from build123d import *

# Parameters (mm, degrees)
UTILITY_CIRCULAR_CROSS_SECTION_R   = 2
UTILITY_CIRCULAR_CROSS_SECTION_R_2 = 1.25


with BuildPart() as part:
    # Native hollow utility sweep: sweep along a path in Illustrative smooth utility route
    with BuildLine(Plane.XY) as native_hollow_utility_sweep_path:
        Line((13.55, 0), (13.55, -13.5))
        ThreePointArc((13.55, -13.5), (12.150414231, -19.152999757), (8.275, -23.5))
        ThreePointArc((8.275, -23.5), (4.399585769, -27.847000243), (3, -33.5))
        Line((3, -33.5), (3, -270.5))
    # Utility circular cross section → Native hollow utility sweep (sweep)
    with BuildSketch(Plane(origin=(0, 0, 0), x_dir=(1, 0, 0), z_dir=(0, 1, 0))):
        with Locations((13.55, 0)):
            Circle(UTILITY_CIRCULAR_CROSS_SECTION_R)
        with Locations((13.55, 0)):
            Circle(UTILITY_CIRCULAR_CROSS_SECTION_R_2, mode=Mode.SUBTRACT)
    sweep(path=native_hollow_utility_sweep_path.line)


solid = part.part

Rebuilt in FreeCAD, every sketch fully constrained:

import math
import FreeCAD as App
import Part
import Sketcher

V = App.Vector

doc = App.newDocument("Part")
body = doc.addObject("PartDesign::Body", "Body")

# Sketch on XZ plane
sketch1 = doc.addObject("Sketcher::SketchObject", "Sketch")
body.addObject(sketch1)
sketch1.AttachmentSupport = (doc.XZ_Plane, [""])
sketch1.MapMode = "FlatFace"
sketch1.addGeometry(Part.Circle(V(13.6, 0, 0), V(0, 0, 1), 2), False)
sketch1.addGeometry(Part.Circle(V(13.6, 0, 0), V(0, 0, 1), 1.2), False)
sketch1.addConstraint(Sketcher.Constraint("Coincident", 1, 3, 0, 3))
sketch1.addConstraint(Sketcher.Constraint("PointOnObject", 0, 3, -1))
sketch1.addConstraint(Sketcher.Constraint("Diameter", 0, 4.0))
sketch1.addConstraint(Sketcher.Constraint("Diameter", 1, 2.5))
sketch1.addConstraint(Sketcher.Constraint("DistanceX", -1, 1, 0, 3, 13.55))

# Sketch on XY plane
sketch2 = doc.addObject("Sketcher::SketchObject", "Sketch001")
body.addObject(sketch2)
sketch2.AttachmentSupport = (doc.XY_Plane, [""])
sketch2.MapMode = "FlatFace"
sketch2.addGeometry(Part.LineSegment(V(14, 0, 0), V(14, -14, 0)), False)
sketch2.addGeometry(Part.ArcOfCircle(Part.Circle(V(1, -14, 0), V(0, 0, 1), 12), math.radians(-56), math.radians(0)), False)
sketch2.addGeometry(Part.ArcOfCircle(Part.Circle(V(15, -33, 0), V(0, 0, 1), 12), math.radians(124), math.radians(180)), False)
sketch2.addGeometry(Part.LineSegment(V(3, -34, 0), V(3, -270, 0)), False)
sketch2.addConstraint(Sketcher.Constraint("Tangent", 0, 2, 1, 2))
sketch2.addConstraint(Sketcher.Constraint("Tangent", 1, 1, 2, 1))
sketch2.addConstraint(Sketcher.Constraint("Tangent", 2, 2, 3, 1))
sketch2.addConstraint(Sketcher.Constraint("Vertical", 0))
sketch2.addConstraint(Sketcher.Constraint("Vertical", 3))
sketch2.addConstraint(Sketcher.Constraint("Equal", 1, 2))
sketch2.addConstraint(Sketcher.Constraint("PointOnObject", 0, 1, -1))
sketch2.addConstraint(Sketcher.Constraint("DistanceY", 3, 2, 3, 1, 237.0))
sketch2.addConstraint(Sketcher.Constraint("DistanceY", 0, 2, 0, 1, 13.5))
sketch2.addConstraint(Sketcher.Constraint("DistanceX", -1, 1, 2, 2, 3.0))
sketch2.addConstraint(Sketcher.Constraint("DistanceY", 2, 3, 1, 3, 20.0))
sketch2.addConstraint(Sketcher.Constraint("DistanceX", -1, 1, 0, 1, 13.55))
doc.recompute()

additivepipe = doc.addObject("PartDesign::AdditivePipe", "AdditivePipe")
body.addObject(additivepipe)
additivepipe.Profile = sketch1
additivepipe.Spine = (sketch2, ["Edge1", "Edge2", "Edge3", "Edge4"])

doc.recompute()
